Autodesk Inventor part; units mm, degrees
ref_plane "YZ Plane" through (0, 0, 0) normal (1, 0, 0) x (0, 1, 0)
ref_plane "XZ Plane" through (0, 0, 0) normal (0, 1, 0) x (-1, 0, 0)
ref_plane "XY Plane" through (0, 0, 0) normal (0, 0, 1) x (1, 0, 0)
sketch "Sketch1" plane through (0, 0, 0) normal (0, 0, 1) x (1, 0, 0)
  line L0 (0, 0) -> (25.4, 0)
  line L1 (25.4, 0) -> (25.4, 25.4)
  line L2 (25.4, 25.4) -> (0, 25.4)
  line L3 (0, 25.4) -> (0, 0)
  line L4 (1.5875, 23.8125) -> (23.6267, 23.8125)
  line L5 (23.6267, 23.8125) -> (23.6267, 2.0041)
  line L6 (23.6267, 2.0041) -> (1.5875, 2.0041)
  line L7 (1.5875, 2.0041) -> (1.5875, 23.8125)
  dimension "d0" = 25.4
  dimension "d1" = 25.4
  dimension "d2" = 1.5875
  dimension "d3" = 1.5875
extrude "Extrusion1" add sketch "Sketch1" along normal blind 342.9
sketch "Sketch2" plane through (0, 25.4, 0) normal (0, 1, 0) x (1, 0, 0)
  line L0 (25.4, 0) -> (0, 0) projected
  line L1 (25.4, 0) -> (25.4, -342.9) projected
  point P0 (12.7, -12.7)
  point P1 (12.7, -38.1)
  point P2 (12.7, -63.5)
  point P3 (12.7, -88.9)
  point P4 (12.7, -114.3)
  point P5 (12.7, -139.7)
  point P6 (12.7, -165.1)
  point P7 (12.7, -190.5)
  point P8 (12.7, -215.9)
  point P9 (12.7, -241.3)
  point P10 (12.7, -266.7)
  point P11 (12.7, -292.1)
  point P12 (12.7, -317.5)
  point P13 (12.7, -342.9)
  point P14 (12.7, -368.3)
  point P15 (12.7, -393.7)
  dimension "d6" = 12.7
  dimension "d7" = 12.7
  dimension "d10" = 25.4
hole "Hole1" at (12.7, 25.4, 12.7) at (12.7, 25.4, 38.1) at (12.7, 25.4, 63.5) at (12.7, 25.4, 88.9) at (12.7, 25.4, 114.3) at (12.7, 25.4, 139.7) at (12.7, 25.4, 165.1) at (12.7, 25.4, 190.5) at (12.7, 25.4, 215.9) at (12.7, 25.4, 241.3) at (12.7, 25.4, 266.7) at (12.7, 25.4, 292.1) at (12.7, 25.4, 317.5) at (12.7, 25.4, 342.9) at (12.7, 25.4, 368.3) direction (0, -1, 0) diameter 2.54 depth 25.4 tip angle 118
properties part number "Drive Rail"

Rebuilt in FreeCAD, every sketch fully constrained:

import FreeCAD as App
import Part
import Sketcher

V = App.Vector
Q = App.Units.Quantity


def add_polygon(sketch, points):
    """Adds a closed chain of lines whose ends are joined by coincident constraints."""
    first, n = sketch.GeometryCount, len(points)
    for a, b in zip(points, points[1:] + points[:1]):
        sketch.addGeometry(Part.LineSegment(App.Vector(*a, 0), App.Vector(*b, 0)), False)
    for i in range(n):
        sketch.addConstraint(Sketcher.Constraint("Coincident", first + i, 2, first + (i + 1) % n, 1))

doc = App.newDocument("Part")
body = doc.addObject("PartDesign::Body", "Body")

sketch1 = body.newObject("Sketcher::SketchObject", "Sketch")
sketch1.AttachmentSupport = (doc.getObject("XY_Plane"), [""])
sketch1.MapMode = "FlatFace"
add_polygon(sketch1, [(0, 25), (0, 0), (25, 0), (25, 25)])
add_polygon(sketch1, [(2, 2), (2, 24), (24, 24), (24, 2)])
sketch1.addConstraint([
    Sketcher.Constraint("Vertical", 0),
    Sketcher.Constraint("Horizontal", 1),
    Sketcher.Constraint("Vertical", 2),
    Sketcher.Constraint("Horizontal", 3),
    Sketcher.Constraint("Vertical", 4),
    Sketcher.Constraint("Horizontal", 5),
    Sketcher.Constraint("Vertical", 6),
    Sketcher.Constraint("Horizontal", 7),
    Sketcher.Constraint("Coincident", 0, 2, -1, 1),
    Sketcher.Constraint("Equal", 3, 0),
    Sketcher.Constraint("DistanceX", 1, 1, 1, 2, Q("1 in")),
    Sketcher.Constraint("DistanceX", -1, 1, 4, 2, Q("0.0625 in")),
    Sketcher.Constraint("DistanceY", 4, 2, 3, 2, Q("0.0625 in")),
    Sketcher.Constraint("DistanceY", 4, 1, 4, 2, Q("0.8586 in")),
    Sketcher.Constraint("DistanceX", 5, 1, 5, 2, Q("22.0392 mm")),
])
pad1 = body.newObject("PartDesign::Pad", "Pad")
pad1.Profile = sketch1
pad1.Length = Q("13.5 in")

sketch2 = body.newObject("Sketcher::SketchObject", "Sketch001")
sketch2.AttachmentSupport = (doc.getObject("XZ_Plane"), [""])
sketch2.MapMode = "FlatFace"
sketch2.AttachmentOffset = App.Placement(V(0, 0, -1 * 25.4), App.Rotation())
sketch2.addGeometry([
    Part.Circle(V(12.7, 12.7, 0), V(0, 0, 1), 1.3),
    Part.Circle(V(12.7, 38.1, 0), V(0, 0, 1), 1.3),
    Part.Circle(V(12.7, 63.5, 0), V(0, 0, 1), 1.3),
    Part.Circle(V(12.7, 88.9, 0), V(0, 0, 1), 1.3),
    Part.Circle(V(12.7, 114.3, 0), V(0, 0, 1), 1.3),
    Part.Circle(V(12.7, 139.7, 0), V(0, 0, 1), 1.3),
    Part.Circle(V(12.7, 165.1, 0), V(0, 0, 1), 1.3),
    Part.Circle(V(12.7, 190.5, 0), V(0, 0, 1), 1.3),
    Part.Circle(V(12.7, 215.9, 0), V(0, 0, 1), 1.3),
    Part.Circle(V(12.7, 241.3, 0), V(0, 0, 1), 1.3),
    Part.Circle(V(12.7, 266.7, 0), V(0, 0, 1), 1.3),
    Part.Circle(V(12.7, 292.1, 0), V(0, 0, 1), 1.3),
    Part.Circle(V(12.7, 317.5, 0), V(0, 0, 1), 1.3),
    Part.Circle(V(12.7, 342.9, 0), V(0, 0, 1), 1.3),
    Part.Circle(V(12.7, 368.3, 0), V(0, 0, 1), 1.3),
], False)
sketch2.addConstraint([
    Sketcher.Constraint("Equal", 0, 1),
    Sketcher.Constraint("Equal", 1, 2),
    Sketcher.Constraint("Equal", 2, 3),
    Sketcher.Constraint("Equal", 3, 4),
    Sketcher.Constraint("Equal", 4, 5),
    Sketcher.Constraint("Equal", 5, 6),
    Sketcher.Constraint("Equal", 6, 7),
    Sketcher.Constraint("Equal", 7, 8),
    Sketcher.Constraint("Equal", 8, 9),
    Sketcher.Constraint("Equal", 9, 10),
    Sketcher.Constraint("Equal", 10, 11),
    Sketcher.Constraint("Equal", 11, 12),
    Sketcher.Constraint("Equal", 12, 13),
    Sketcher.Constraint("Equal", 13, 14),
    Sketcher.Constraint("Vertical", 0, 3, 1, 3),
    Sketcher.Constraint("Vertical", 1, 3, 2, 3),
    Sketcher.Constraint("Vertical", 2, 3, 3, 3),
    Sketcher.Constraint("Vertical", 3, 3, 4, 3),
    Sketcher.Constraint("Vertical", 4, 3, 5, 3),
    Sketcher.Constraint("Vertical", 5, 3, 6, 3),
    Sketcher.Constraint("Vertical", 6, 3, 7, 3),
    Sketcher.Constraint("Vertical", 7, 3, 8, 3),
    Sketcher.Constraint("Vertical", 8, 3, 9, 3),
    Sketcher.Constraint("Vertical", 9, 3, 10, 3),
    Sketcher.Constraint("Vertical", 10, 3, 11, 3),
    Sketcher.Constraint("Vertical", 11, 3, 12, 3),
    Sketcher.Constraint("Vertical", 12, 3, 13, 3),
    Sketcher.Constraint("Vertical", 13, 3, 14, 3),
    Sketcher.Constraint("Diameter", 0, Q("0.1 in")),
    Sketcher.Constraint("DistanceY", 0, 3, 1, 3, Q("1 in")),
    Sketcher.Constraint("DistanceY", 1, 3, 2, 3, Q("1 in")),
    Sketcher.Constraint("DistanceY", 2, 3, 3, 3, Q("1 in")),
    Sketcher.Constraint("DistanceY", 3, 3, 4, 3, Q("1 in")),
    Sketcher.Constraint("DistanceY", 4, 3, 5, 3, Q("1 in")),
    Sketcher.Constraint("DistanceY", 5, 3, 6, 3, Q("1 in")),
    Sketcher.Constraint("DistanceY", 6, 3, 7, 3, Q("1 in")),
    Sketcher.Constraint("DistanceY", 7, 3, 8, 3, Q("1 in")),
    Sketcher.Constraint("DistanceY", 8, 3, 9, 3, Q("1 in")),
    Sketcher.Constraint("DistanceY", 9, 3, 10, 3, Q("1 in")),
    Sketcher.Constraint("DistanceY", 10, 3, 11, 3, Q("1 in")),
    Sketcher.Constraint("DistanceY", 11, 3, 12, 3, Q("1 in")),
    Sketcher.Constraint("DistanceY", 12, 3, 13, 3, Q("1 in")),
    Sketcher.Constraint("DistanceY", 13, 3, 14, 3, Q("1 in")),
    Sketcher.Constraint("DistanceX", -1, 1, 0, 3, Q("0.5 in")),
    Sketcher.Constraint("DistanceY", -1, 1, 0, 3, Q("0.5 in")),
])
doc.recompute()
hole = body.newObject("PartDesign::Hole", "Hole")
hole.Profile = sketch2
hole.ThreadType = "None"
hole.Diameter = Q("0.1 in")
hole.DepthType = "Dimension"
hole.Depth = Q("1 in")
hole.DrillPoint = "Angled"
hole.DrillPointAngle = 118
hole.Reversed = True

doc.recompute()
